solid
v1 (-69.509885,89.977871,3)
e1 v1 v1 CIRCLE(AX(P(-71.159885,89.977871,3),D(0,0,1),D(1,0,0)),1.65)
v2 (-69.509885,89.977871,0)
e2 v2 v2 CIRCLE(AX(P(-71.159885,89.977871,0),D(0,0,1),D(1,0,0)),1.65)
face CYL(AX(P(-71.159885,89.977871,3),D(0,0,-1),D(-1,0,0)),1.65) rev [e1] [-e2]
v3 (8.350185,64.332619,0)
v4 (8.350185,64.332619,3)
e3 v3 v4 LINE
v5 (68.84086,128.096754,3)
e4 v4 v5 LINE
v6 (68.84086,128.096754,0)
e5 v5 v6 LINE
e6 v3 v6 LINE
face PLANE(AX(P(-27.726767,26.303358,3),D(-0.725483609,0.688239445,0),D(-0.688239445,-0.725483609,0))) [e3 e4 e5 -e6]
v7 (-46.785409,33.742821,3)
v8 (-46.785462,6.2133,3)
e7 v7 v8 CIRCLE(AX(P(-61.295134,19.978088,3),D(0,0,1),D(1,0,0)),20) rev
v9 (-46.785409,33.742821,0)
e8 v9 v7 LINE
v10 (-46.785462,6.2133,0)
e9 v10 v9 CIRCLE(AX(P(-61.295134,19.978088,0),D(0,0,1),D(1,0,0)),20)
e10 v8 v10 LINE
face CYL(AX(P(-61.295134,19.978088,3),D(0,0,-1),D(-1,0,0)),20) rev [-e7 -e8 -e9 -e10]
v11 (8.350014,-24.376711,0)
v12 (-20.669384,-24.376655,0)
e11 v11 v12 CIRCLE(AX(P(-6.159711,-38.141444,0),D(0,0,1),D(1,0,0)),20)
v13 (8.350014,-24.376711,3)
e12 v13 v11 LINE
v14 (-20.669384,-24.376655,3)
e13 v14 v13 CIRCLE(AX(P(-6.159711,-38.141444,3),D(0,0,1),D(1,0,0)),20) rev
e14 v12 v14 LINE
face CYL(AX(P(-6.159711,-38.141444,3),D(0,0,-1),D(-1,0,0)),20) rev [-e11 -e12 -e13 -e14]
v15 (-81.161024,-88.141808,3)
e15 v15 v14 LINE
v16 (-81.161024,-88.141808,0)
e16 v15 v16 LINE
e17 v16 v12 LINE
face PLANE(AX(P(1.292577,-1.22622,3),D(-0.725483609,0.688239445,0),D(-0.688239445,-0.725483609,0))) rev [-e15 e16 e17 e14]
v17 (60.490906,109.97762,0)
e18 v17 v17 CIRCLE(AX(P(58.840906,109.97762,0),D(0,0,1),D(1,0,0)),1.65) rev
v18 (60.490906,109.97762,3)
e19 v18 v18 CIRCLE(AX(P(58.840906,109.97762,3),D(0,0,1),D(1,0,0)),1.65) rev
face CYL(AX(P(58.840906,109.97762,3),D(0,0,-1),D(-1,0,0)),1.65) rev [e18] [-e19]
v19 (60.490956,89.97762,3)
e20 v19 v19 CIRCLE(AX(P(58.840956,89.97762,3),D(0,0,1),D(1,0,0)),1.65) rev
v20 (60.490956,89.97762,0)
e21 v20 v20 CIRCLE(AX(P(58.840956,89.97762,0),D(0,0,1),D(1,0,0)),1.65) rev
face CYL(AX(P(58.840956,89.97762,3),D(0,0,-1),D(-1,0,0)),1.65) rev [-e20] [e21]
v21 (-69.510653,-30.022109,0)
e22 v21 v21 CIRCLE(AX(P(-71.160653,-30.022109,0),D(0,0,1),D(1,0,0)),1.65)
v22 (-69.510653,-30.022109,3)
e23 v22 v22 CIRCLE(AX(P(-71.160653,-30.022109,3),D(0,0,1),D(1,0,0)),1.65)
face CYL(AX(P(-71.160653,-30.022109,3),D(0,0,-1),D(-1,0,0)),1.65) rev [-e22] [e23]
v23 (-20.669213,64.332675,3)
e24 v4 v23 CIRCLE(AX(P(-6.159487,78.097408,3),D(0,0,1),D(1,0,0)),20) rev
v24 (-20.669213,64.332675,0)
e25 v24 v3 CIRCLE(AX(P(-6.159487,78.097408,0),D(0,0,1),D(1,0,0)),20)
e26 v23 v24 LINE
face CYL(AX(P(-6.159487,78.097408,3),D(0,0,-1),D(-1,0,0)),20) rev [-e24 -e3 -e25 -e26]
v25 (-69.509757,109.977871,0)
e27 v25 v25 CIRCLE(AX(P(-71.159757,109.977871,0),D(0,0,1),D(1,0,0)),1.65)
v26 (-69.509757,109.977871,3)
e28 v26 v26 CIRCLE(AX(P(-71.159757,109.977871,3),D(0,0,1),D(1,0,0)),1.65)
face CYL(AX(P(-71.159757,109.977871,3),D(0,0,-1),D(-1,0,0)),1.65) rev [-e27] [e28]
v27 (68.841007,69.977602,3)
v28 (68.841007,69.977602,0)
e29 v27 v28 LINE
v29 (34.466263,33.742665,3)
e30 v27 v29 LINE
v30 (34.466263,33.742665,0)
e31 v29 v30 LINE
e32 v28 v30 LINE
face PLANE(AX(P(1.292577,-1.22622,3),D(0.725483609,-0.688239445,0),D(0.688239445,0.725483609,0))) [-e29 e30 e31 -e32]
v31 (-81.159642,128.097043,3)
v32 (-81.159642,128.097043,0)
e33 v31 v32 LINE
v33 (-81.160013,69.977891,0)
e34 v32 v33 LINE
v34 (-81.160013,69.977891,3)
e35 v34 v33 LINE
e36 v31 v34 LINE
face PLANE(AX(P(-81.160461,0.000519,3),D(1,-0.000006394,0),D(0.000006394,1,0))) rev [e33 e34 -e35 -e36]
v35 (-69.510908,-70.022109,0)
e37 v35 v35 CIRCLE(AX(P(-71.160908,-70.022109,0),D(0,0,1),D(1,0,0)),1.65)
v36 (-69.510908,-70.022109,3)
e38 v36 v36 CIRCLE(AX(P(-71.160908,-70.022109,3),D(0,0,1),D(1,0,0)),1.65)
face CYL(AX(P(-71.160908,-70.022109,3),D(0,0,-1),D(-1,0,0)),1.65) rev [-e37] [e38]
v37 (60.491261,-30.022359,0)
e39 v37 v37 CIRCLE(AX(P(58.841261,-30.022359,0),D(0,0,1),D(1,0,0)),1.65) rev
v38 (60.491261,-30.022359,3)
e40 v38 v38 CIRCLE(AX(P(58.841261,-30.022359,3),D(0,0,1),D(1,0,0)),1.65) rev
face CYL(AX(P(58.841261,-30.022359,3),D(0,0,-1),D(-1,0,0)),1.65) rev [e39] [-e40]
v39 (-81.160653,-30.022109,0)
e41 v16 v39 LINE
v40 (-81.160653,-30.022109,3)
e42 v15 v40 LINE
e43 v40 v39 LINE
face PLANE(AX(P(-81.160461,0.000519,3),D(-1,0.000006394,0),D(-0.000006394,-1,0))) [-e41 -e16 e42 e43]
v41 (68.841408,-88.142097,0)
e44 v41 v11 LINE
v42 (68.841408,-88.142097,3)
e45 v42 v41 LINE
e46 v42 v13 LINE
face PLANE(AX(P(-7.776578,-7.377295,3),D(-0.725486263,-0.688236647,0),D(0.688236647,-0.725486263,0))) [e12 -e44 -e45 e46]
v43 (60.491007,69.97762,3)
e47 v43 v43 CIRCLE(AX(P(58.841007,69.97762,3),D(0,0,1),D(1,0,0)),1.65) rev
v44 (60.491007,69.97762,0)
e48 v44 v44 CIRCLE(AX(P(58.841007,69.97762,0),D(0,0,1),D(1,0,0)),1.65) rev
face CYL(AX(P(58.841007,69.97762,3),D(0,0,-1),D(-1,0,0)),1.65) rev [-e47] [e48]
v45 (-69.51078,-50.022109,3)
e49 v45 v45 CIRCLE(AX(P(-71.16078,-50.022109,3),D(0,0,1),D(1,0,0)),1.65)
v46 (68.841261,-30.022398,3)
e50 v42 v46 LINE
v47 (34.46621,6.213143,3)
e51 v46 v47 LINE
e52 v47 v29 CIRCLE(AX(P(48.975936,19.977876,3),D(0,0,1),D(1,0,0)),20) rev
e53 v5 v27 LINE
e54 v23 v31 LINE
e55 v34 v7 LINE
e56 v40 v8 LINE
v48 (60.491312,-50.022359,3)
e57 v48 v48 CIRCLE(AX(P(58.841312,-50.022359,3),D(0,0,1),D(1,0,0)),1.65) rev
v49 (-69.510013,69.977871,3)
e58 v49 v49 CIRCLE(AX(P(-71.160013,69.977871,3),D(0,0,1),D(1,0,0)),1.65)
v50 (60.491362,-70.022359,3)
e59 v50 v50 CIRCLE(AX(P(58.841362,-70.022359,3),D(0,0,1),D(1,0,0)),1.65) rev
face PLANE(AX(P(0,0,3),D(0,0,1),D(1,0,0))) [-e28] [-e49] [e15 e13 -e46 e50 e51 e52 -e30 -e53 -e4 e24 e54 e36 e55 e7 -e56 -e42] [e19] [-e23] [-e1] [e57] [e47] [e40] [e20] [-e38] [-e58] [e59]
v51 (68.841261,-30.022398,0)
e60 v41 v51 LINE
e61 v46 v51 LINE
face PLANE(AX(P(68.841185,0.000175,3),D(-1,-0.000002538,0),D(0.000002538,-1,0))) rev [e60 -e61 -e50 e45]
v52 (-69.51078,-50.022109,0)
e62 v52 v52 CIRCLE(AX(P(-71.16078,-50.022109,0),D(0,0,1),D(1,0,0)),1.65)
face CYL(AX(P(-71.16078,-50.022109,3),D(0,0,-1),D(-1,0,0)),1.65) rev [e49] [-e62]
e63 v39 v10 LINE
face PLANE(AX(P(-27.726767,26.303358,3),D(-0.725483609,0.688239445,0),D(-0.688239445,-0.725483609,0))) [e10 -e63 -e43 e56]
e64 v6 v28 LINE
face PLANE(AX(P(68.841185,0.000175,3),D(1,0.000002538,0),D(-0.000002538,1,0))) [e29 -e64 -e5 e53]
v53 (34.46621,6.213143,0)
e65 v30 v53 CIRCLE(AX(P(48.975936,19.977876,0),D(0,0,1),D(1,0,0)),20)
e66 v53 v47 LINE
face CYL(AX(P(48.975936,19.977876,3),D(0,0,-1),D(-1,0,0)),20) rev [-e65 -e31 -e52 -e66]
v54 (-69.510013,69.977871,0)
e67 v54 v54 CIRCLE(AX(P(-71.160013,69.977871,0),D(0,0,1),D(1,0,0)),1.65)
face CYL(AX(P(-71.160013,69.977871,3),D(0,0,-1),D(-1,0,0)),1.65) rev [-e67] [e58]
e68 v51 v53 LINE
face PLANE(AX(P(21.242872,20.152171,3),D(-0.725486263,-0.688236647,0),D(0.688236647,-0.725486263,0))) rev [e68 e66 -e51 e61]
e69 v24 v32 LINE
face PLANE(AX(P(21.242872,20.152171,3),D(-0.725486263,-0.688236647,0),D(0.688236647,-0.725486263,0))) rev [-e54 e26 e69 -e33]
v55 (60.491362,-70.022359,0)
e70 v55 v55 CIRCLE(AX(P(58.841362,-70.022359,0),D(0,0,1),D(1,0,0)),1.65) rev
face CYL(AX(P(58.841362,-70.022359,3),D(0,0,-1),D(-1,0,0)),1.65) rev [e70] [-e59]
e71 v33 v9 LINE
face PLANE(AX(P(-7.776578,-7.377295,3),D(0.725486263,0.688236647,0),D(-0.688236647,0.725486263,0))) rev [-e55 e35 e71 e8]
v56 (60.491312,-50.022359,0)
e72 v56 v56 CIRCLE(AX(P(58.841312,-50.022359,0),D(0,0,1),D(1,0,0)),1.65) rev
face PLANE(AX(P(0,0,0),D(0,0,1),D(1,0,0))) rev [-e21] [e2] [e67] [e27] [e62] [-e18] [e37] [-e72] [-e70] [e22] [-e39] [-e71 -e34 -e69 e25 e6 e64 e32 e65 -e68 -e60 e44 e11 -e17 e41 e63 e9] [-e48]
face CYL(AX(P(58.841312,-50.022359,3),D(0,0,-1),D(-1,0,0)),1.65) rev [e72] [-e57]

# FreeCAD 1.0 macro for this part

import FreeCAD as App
import Part
import Sketcher


def edges_at(feature, points):
    """Names of the edges that pass closest to the given points."""
    edges = feature.Shape.Edges
    near = lambda p: min(range(len(edges)), key=lambda i: edges[i].distToShape(Part.Vertex(*p))[0])
    return sorted({f"Edge{near(p) + 1}" for p in points})


def add_polygon(sketch, points):
    """Adds a closed chain of lines whose ends are joined by coincident constraints."""
    first, n = sketch.GeometryCount, len(points)
    for a, b in zip(points, points[1:] + points[:1]):
        sketch.addGeometry(Part.LineSegment(App.Vector(*a, 0), App.Vector(*b, 0)), False)
    for i in range(n):
        sketch.addConstraint(Sketcher.Constraint("Coincident", first + i, 2, first + (i + 1) % n, 1))

doc = App.newDocument("Part")
body = doc.addObject("PartDesign::Body", "Body")

# Sketch on XY plane
sketch1 = doc.addObject("Sketcher::SketchObject", "Sketch")
body.addObject(sketch1)
sketch1.AttachmentSupport = (doc.XY_Plane, [""])
sketch1.MapMode = "FlatFace"
add_polygon(sketch1, [(-81.159642, 128.097043), (-81.160013, 69.977891), (-33.727367, 19.978035), (-81.160653, -30.022109), (-81.161024, -88.141808), (-6.159655, -9.081731), (68.841408, -88.142097), (68.841261, -30.022398), (21.408168, 19.977929), (68.841007, 69.977602), (68.84086, 128.096754), (-6.159543, 49.037695)])  # lines 0-11
sketch1.addGeometry(Part.Circle(App.Vector(-71.160908, -70.022109, 0), App.Vector(0, 0, 1), 1.65), False)  # 12
sketch1.addGeometry(Part.Circle(App.Vector(-71.16078, -50.022109, 0), App.Vector(0, 0, 1), 1.65), False)  # 13
sketch1.addGeometry(Part.Circle(App.Vector(-71.160653, -30.022109, 0), App.Vector(0, 0, 1), 1.65), False)  # 14
sketch1.addGeometry(Part.Circle(App.Vector(58.841362, -70.022359, 0), App.Vector(0, 0, 1), 1.65), False)  # 15
sketch1.addGeometry(Part.Circle(App.Vector(58.841312, -50.022359, 0), App.Vector(0, 0, 1), 1.65), False)  # 16
sketch1.addGeometry(Part.Circle(App.Vector(58.841261, -30.022359, 0), App.Vector(0, 0, 1), 1.65), False)  # 17
sketch1.addGeometry(Part.Circle(App.Vector(-71.160013, 69.977871, 0), App.Vector(0, 0, 1), 1.65), False)  # 18
sketch1.addGeometry(Part.Circle(App.Vector(-71.159885, 89.977871, 0), App.Vector(0, 0, 1), 1.65), False)  # 19
sketch1.addGeometry(Part.Circle(App.Vector(-71.159757, 109.977871, 0), App.Vector(0, 0, 1), 1.65), False)  # 20
sketch1.addGeometry(Part.Circle(App.Vector(58.841007, 69.97762, 0), App.Vector(0, 0, 1), 1.65), False)  # 21
sketch1.addGeometry(Part.Circle(App.Vector(58.840956, 89.97762, 0), App.Vector(0, 0, 1), 1.65), False)  # 22
sketch1.addGeometry(Part.Circle(App.Vector(58.840906, 109.97762, 0), App.Vector(0, 0, 1), 1.65), False)  # 23
sketch1.addConstraint(Sketcher.Constraint("Equal", 12, 13))
sketch1.addConstraint(Sketcher.Constraint("Equal", 13, 14))
sketch1.addConstraint(Sketcher.Constraint("Equal", 14, 15))
sketch1.addConstraint(Sketcher.Constraint("Equal", 15, 16))
sketch1.addConstraint(Sketcher.Constraint("Equal", 16, 17))
sketch1.addConstraint(Sketcher.Constraint("Equal", 17, 18))
sketch1.addConstraint(Sketcher.Constraint("Equal", 18, 19))
sketch1.addConstraint(Sketcher.Constraint("Equal", 19, 20))
sketch1.addConstraint(Sketcher.Constraint("Equal", 20, 21))
sketch1.addConstraint(Sketcher.Constraint("Equal", 21, 22))
sketch1.addConstraint(Sketcher.Constraint("Equal", 22, 23))
sketch1.addConstraint(Sketcher.Constraint("Parallel", 0, 3))
sketch1.addConstraint(Sketcher.Constraint("Parallel", 2, 4))
sketch1.addConstraint(Sketcher.Constraint("Parallel", 1, 5))
sketch1.addConstraint(Sketcher.Constraint("Parallel", 5, 7))
sketch1.addConstraint(Sketcher.Constraint("Parallel", 4, 8))
sketch1.addConstraint(Sketcher.Constraint("Parallel", 6, 9))
sketch1.addConstraint(Sketcher.Constraint("Parallel", 8, 10))
sketch1.addConstraint(Sketcher.Constraint("Parallel", 7, 11))
sketch1.addConstraint(Sketcher.Constraint("Horizontal", 14, 3, 2, 2))
sketch1.addConstraint(Sketcher.Constraint("Equal", 4, 5))
sketch1.addConstraint(Sketcher.Constraint("Equal", 3, 6))
sketch1.addConstraint(Sketcher.Constraint("Equal", 2, 7))
sketch1.addConstraint(Sketcher.Constraint("Equal", 1, 8))
sketch1.addConstraint(Sketcher.Constraint("Equal", 0, 9))
sketch1.addConstraint(Sketcher.Constraint("Diameter", 12, 3.3))
sketch1.addConstraint(Sketcher.Constraint("DistanceY", 12, 3, 13, 3, 20.0))
sketch1.addConstraint(Sketcher.Constraint("DistanceY", 13, 3, 14, 3, 20.0))
sketch1.addConstraint(Sketcher.Constraint("DistanceY", 15, 3, 16, 3, 20.0))
sketch1.addConstraint(Sketcher.Constraint("DistanceY", 16, 3, 17, 3, 20.0))
sketch1.addConstraint(Sketcher.Constraint("DistanceY", 18, 3, 19, 3, 20.0))
sketch1.addConstraint(Sketcher.Constraint("DistanceY", 19, 3, 20, 3, 20.0))
sketch1.addConstraint(Sketcher.Constraint("DistanceY", 21, 3, 22, 3, 20.0))
sketch1.addConstraint(Sketcher.Constraint("DistanceY", 22, 3, 23, 3, 20.0))
sketch1.addConstraint(Sketcher.Constraint("DistanceX", 0, 2, 18, 3, 10.0))
sketch1.addConstraint(Sketcher.Constraint("DistanceY", 14, 3, 0, 2, 100.0))
sketch1.addConstraint(Sketcher.Constraint("DistanceX", 2, 2, 14, 3, 10.0))
sketch1.addConstraint(Sketcher.Constraint("DistanceX", 17, 3, 6, 2, 10.0))
sketch1.addConstraint(Sketcher.Constraint("DistanceX", 21, 3, 8, 2, 10.0))
sketch1.addConstraint(Sketcher.Constraint("Distance", 3, 58.119699))
sketch1.addConstraint(Sketcher.Constraint("DistanceX", 17, 3, 15, 3, 0.000102))
sketch1.addConstraint(Sketcher.Constraint("DistanceX", 23, 3, 21, 3, 0.000102))
sketch1.addConstraint(Sketcher.Constraint("DistanceX", 11, 2, 10, 2, 75.000098))
sketch1.addConstraint(Sketcher.Constraint("Distance", 4, 108.975691))
sketch1.addConstraint(Sketcher.Constraint("DistanceX", 12, 3, -1, 1, 71.160908))
sketch1.addConstraint(Sketcher.Constraint("DistanceY", 12, 3, -1, 1, 70.022109))
sketch1.addConstraint(Sketcher.Constraint("DistanceX", 13, 3, -1, 1, 71.16078))
sketch1.addConstraint(Sketcher.Constraint("DistanceY", 15, 3, -1, 1, 70.022359))
sketch1.addConstraint(Sketcher.Constraint("DistanceX", -1, 1, 16, 3, 58.841312))
sketch1.addConstraint(Sketcher.Constraint("DistanceX", -1, 1, 17, 3, 58.841261))
sketch1.addConstraint(Sketcher.Constraint("DistanceY", -1, 1, 18, 3, 69.977871))
sketch1.addConstraint(Sketcher.Constraint("DistanceY", -1, 1, 21, 3, 69.97762))
sketch1.addConstraint(Sketcher.Constraint("DistanceY", 4, 2, -1, 1, 9.081731))
sketch1.addConstraint(Sketcher.Constraint("DistanceX", -1, 1, 5, 2, 68.841408))
sketch1.addConstraint(Sketcher.Constraint("DistanceX", -1, 1, 7, 2, 21.408168))
sketch1.addConstraint(Sketcher.Constraint("DistanceY", -1, 1, 7, 2, 19.977929))
sketch1.addConstraint(Sketcher.Constraint("DistanceX", 12, 3, 20, 3, 0.001151))
sketch1.addConstraint(Sketcher.Constraint("DistanceX", 19, 3, 22, 3, 130.000842))
sketch1.addConstraint(Sketcher.Constraint("DistanceX", 18, 3, 22, 3, 130.00097))
sketch1.addConstraint(Sketcher.Constraint("DistanceY", 1, 2, 10, 2, 29.05966))
pad1 = doc.addObject("PartDesign::Pad", "Pad")
body.addObject(pad1)
pad1.Profile = sketch1
pad1.Length = 3
doc.recompute()

fillet = doc.addObject("PartDesign::Fillet", "Fillet")
body.addObject(fillet)
fillet.Base = (pad1, edges_at(pad1, [
    (21.408, 19.978, 1.5),
    (-6.16, -9.082, 1.5),
    (-33.727, 19.978, 1.5),
    (-6.16, 49.038, 1.5),
]))
fillet.Radius = 20

doc.recompute()
